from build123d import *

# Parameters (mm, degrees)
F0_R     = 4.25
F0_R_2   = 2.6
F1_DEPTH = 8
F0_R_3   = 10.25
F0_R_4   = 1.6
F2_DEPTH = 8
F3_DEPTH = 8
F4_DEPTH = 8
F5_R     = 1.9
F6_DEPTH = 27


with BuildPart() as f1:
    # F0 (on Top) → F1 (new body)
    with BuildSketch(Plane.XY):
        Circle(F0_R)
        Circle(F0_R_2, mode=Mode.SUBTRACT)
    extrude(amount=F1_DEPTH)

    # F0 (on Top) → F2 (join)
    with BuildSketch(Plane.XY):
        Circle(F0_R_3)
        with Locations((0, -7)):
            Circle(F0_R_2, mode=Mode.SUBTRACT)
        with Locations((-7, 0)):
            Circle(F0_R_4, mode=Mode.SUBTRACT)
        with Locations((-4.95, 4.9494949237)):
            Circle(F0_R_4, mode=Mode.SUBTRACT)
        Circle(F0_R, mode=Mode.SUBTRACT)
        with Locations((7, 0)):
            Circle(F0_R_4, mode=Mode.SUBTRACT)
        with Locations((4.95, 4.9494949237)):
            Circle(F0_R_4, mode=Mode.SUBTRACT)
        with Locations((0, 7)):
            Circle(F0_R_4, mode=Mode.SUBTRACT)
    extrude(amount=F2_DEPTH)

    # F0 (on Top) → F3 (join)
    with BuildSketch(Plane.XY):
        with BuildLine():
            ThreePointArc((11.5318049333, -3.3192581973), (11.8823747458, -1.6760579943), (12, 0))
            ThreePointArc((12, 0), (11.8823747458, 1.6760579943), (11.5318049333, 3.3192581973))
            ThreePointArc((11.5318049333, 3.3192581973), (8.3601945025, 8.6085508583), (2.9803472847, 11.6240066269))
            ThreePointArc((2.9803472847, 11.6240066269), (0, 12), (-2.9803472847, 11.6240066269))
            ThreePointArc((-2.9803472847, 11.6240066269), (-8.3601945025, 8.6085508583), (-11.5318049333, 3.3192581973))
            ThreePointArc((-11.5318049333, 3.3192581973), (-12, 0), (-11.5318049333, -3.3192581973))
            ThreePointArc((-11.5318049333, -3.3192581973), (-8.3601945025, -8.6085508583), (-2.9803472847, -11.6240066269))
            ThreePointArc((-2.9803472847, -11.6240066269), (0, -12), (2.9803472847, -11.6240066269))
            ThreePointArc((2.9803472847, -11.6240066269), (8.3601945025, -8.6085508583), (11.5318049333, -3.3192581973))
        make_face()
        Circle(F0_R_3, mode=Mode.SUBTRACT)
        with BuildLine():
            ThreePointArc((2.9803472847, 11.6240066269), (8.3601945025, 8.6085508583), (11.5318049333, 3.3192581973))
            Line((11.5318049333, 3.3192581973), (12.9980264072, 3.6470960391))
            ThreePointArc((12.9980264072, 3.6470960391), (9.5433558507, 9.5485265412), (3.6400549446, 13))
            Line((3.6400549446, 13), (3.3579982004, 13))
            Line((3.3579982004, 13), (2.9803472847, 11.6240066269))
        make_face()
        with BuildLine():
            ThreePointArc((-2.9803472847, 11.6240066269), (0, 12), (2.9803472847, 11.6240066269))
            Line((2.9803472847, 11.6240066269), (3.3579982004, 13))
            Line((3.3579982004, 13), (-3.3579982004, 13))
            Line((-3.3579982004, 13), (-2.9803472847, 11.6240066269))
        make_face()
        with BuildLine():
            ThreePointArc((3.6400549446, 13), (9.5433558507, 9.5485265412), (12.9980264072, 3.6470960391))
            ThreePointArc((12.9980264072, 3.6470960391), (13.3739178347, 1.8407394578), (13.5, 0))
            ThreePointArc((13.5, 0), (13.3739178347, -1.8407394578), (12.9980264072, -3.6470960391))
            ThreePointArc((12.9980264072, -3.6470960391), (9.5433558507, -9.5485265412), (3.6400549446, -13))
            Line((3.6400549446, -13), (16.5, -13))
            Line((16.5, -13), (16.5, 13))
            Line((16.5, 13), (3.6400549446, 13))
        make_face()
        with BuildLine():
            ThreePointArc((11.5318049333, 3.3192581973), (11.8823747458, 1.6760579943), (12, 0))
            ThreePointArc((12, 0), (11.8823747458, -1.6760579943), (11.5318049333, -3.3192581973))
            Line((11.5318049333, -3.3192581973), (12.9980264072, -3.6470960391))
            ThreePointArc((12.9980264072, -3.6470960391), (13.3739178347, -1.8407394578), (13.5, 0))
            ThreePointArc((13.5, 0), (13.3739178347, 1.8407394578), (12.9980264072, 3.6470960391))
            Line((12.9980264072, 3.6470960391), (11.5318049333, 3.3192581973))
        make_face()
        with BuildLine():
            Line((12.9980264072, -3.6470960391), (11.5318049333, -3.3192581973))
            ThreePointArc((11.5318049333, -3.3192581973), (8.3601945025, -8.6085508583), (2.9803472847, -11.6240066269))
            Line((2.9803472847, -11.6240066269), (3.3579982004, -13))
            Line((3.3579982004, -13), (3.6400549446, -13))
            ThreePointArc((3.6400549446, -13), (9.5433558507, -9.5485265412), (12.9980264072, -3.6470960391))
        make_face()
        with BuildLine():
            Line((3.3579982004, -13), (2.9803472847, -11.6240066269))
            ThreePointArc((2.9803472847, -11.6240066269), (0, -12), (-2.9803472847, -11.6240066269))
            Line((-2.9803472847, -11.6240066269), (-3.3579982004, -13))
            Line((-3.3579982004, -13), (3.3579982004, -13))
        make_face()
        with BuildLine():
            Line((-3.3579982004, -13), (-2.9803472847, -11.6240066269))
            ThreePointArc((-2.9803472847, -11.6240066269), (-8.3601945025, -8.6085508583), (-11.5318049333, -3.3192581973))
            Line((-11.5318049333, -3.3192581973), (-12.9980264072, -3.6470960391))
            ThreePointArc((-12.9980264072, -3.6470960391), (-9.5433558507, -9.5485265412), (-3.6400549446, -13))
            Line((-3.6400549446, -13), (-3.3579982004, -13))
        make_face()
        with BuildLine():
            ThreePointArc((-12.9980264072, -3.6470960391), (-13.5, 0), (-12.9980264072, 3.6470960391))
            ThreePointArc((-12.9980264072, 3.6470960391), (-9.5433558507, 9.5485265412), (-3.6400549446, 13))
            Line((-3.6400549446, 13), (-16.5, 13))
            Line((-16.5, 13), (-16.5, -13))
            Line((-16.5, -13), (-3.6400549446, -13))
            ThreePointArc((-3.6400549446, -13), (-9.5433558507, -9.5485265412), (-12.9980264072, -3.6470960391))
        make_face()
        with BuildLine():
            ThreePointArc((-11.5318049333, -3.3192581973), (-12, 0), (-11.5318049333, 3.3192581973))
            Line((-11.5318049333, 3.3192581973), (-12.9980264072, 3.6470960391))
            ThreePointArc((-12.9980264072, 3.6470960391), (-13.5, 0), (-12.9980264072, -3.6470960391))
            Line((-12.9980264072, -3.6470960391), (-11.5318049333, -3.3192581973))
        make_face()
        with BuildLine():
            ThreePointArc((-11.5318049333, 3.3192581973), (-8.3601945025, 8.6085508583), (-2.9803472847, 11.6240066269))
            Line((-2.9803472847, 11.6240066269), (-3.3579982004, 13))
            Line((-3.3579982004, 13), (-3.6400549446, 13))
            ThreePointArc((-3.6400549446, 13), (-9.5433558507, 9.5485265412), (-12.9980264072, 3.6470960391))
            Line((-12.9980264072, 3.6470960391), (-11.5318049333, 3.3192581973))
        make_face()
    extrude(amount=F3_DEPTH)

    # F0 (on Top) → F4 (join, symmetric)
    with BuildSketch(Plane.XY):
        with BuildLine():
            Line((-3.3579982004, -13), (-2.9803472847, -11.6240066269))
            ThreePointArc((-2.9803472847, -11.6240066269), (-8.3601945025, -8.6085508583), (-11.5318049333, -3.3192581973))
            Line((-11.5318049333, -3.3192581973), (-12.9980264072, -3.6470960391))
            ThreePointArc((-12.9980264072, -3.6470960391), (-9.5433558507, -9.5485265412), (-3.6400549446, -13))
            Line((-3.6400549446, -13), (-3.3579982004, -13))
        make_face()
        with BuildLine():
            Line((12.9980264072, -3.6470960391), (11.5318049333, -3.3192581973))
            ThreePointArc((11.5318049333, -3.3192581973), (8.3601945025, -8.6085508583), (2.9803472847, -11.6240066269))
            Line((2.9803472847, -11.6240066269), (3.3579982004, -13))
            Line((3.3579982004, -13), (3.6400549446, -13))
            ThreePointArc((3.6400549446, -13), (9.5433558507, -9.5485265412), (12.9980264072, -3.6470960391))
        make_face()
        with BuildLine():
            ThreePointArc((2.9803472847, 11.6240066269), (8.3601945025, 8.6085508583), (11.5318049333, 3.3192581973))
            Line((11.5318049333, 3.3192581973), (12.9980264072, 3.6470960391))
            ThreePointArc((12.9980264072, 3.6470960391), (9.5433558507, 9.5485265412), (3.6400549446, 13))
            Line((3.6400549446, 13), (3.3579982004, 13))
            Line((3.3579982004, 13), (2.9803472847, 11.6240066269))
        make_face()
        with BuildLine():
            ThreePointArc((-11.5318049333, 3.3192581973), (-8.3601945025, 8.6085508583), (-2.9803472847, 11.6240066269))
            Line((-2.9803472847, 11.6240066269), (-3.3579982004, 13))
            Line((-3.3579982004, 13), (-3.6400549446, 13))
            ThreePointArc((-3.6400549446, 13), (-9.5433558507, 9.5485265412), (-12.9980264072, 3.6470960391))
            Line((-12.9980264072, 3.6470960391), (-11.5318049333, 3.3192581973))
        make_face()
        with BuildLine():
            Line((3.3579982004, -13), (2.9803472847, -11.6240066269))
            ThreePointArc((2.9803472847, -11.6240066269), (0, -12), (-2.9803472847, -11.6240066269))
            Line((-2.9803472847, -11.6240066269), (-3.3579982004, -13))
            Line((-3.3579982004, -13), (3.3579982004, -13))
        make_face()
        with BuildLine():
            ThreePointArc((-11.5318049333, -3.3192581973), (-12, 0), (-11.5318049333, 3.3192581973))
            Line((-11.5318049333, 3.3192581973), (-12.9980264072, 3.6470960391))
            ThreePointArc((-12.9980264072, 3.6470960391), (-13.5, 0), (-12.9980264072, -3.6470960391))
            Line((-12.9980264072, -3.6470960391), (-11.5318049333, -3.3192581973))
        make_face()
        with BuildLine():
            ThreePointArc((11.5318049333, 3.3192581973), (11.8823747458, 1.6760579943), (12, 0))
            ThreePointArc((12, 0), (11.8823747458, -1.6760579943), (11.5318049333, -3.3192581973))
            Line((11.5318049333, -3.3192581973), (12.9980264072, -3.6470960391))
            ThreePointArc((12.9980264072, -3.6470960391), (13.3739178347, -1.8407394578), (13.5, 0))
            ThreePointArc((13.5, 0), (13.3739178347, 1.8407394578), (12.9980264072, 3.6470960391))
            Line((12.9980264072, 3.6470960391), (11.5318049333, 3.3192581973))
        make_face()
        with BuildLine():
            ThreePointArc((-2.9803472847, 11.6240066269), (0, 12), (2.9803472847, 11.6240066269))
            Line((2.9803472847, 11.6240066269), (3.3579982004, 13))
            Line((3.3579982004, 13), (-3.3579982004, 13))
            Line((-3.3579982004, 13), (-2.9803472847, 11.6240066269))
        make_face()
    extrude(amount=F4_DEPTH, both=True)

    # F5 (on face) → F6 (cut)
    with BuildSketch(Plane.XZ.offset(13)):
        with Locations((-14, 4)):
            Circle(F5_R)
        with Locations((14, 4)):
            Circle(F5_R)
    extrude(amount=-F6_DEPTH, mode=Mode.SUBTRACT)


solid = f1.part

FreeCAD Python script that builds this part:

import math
import FreeCAD as App
import Part
import Sketcher

doc = App.newDocument("Part")
body = doc.addObject("PartDesign::Body", "Body")

# Sketch on XY plane
sketch1 = doc.addObject("Sketcher::SketchObject", "Sketch")
body.addObject(sketch1)
sketch1.AttachmentSupport = (doc.XY_Plane, [""])
sketch1.MapMode = "FlatFace"
sketch1.addGeometry([
    Part.Circle(App.Vector(0, 0, 0), App.Vector(0, 0, 1), 4.2),
    Part.Circle(App.Vector(0, 0, 0), App.Vector(0, 0, 1), 2.6),
], False)
sketch1.addConstraint([
    Sketcher.Constraint("Coincident", 0, 3, -1, 1),
    Sketcher.Constraint("Coincident", 1, 3, -1, 1),
    Sketcher.Constraint("Diameter", 0, 8.5),
    Sketcher.Constraint("Diameter", 1, 5.2),
])
pad1 = doc.addObject("PartDesign::Pad", "Pad")
body.addObject(pad1)
pad1.Profile = sketch1
pad1.Length = 8

# Sketch on XY plane
sketch2 = doc.addObject("Sketcher::SketchObject", "Sketch001")
body.addObject(sketch2)
sketch2.AttachmentSupport = (doc.XY_Plane, [""])
sketch2.MapMode = "FlatFace"
sketch2.addGeometry([
    Part.Circle(App.Vector(0, 0, 0), App.Vector(0, 0, 1), 10.2),  # 0
    Part.Circle(App.Vector(0, -7, 0), App.Vector(0, 0, 1), 2.6),  # 1
    Part.Circle(App.Vector(-7, 0, 0), App.Vector(0, 0, 1), 1.6),  # 2
    Part.Circle(App.Vector(0, 0, 0), App.Vector(0, 0, 1), 4.2),  # 3
    Part.Circle(App.Vector(-5, 4.9, 0), App.Vector(0, 0, 1), 1.6),  # 4
    Part.Circle(App.Vector(0, 7, 0), App.Vector(0, 0, 1), 1.6),  # 5
    Part.Circle(App.Vector(7, 0, 0), App.Vector(0, 0, 1), 1.6),  # 6
    Part.Circle(App.Vector(5, 4.9, 0), App.Vector(0, 0, 1), 1.6),  # 7
], False)
sketch2.addConstraint([
    Sketcher.Constraint("Coincident", 0, 3, -1, 1),
    Sketcher.Constraint("Coincident", 3, 3, -1, 1),
    Sketcher.Constraint("Equal", 2, 4),
    Sketcher.Constraint("Equal", 4, 5),
    Sketcher.Constraint("Equal", 5, 6),
    Sketcher.Constraint("Equal", 6, 7),
    Sketcher.Constraint("Symmetric", 1, 3, 5, 3, -1, 1),
    Sketcher.Constraint("Symmetric", 2, 3, 6, 3, -1, 1),
    Sketcher.Constraint("Symmetric", 4, 3, 7, 3, -2),
    Sketcher.Constraint("PointOnObject", 1, 3, -2),
    Sketcher.Constraint("PointOnObject", 2, 3, -1),
    Sketcher.Constraint("Diameter", 0, 20.5),
    Sketcher.Constraint("Diameter", 1, 5.2),
    Sketcher.Constraint("Diameter", 2, 3.2),
    Sketcher.Constraint("Diameter", 3, 8.5),
    Sketcher.Constraint("DistanceY", 1, 3, -1, 1, 7.0),
    Sketcher.Constraint("DistanceX", 2, 3, -1, 1, 7.0),
    Sketcher.Constraint("DistanceX", 4, 3, 7, 3, 9.9),
    Sketcher.Constraint("DistanceY", -1, 1, 4, 3, 4.949495),
])
pad2 = doc.addObject("PartDesign::Pad", "Pad001")
body.addObject(pad2)
pad2.Profile = sketch2
pad2.Length = 8

# Sketch on XY plane
sketch3 = doc.addObject("Sketcher::SketchObject", "Sketch002")
body.addObject(sketch3)
sketch3.AttachmentSupport = (doc.XY_Plane, [""])
sketch3.MapMode = "FlatFace"
sketch3.addGeometry([
    Part.LineSegment(App.Vector(16, -13, 0), App.Vector(16, 13, 0)),  # 0
    Part.LineSegment(App.Vector(16, 13, 0), App.Vector(-16, 13, 0)),  # 1
    Part.LineSegment(App.Vector(-16, 13, 0), App.Vector(-16, -13, 0)),  # 2
    Part.LineSegment(App.Vector(-16, -13, 0), App.Vector(16, -13, 0)),  # 3
    Part.Circle(App.Vector(0, 0, 0), App.Vector(0, 0, 1), 10),  # 4
], False)
sketch3.addConstraint([
    Sketcher.Constraint("Coincident", 0, 2, 1, 1),
    Sketcher.Constraint("Coincident", 1, 2, 2, 1),
    Sketcher.Constraint("Coincident", 2, 2, 3, 1),
    Sketcher.Constraint("Coincident", 3, 2, 0, 1),
    Sketcher.Constraint("Vertical", 0),
    Sketcher.Constraint("Horizontal", 1),
    Sketcher.Constraint("Vertical", 2),
    Sketcher.Constraint("Horizontal", 3),
    Sketcher.Constraint("Coincident", 4, 3, -1, 1),
    Sketcher.Constraint("Symmetric", 0, 2, 2, 2, -1, 1),
    Sketcher.Constraint("Diameter", 4, 20.5),
    Sketcher.Constraint("DistanceX", 1, 2, 1, 1, 33.0),
    Sketcher.Constraint("DistanceY", 0, 1, 0, 2, 26.0),
])
pad3 = doc.addObject("PartDesign::Pad", "Pad002")
body.addObject(pad3)
pad3.Profile = sketch3
pad3.Length = 8

# Sketch on XY plane
sketch4 = doc.addObject("Sketcher::SketchObject", "Sketch003")
body.addObject(sketch4)
sketch4.AttachmentSupport = (doc.XY_Plane, [""])
sketch4.MapMode = "FlatFace"
sketch4.addGeometry([
    Part.ArcOfCircle(Part.Circle(App.Vector(0, 0, 0), App.Vector(0, 0, 1), 13.5), math.radians(106), math.radians(164)),  # 0
    Part.ArcOfCircle(Part.Circle(App.Vector(0, 0, 0), App.Vector(0, 0, 1), 13.5), math.radians(164), math.radians(196)),  # 1
    Part.ArcOfCircle(Part.Circle(App.Vector(0, 0, 0), App.Vector(0, 0, 1), 13.5), math.radians(-164), math.radians(-106)),  # 2
    Part.LineSegment(App.Vector(-3.6, -13, 0), App.Vector(3.6, -13, 0)),  # 3
    Part.ArcOfCircle(Part.Circle(App.Vector(0, 0, 0), App.Vector(0, 0, 1), 13.5), math.radians(-74), math.radians(-16)),  # 4
    Part.ArcOfCircle(Part.Circle(App.Vector(0, 0, 0), App.Vector(0, 0, 1), 13.5), math.radians(-15.67), math.radians(0)),  # 5
    Part.ArcOfCircle(Part.Circle(App.Vector(0, 0, 0), App.Vector(0, 0, 1), 13.5), math.radians(0), math.radians(15.67)),  # 6
    Part.ArcOfCircle(Part.Circle(App.Vector(0, 0, 0), App.Vector(0, 0, 1), 13.5), math.radians(16), math.radians(74)),  # 7
    Part.LineSegment(App.Vector(3.6, 13, 0), App.Vector(-3.6, 13, 0)),  # 8
    Part.ArcOfCircle(Part.Circle(App.Vector(0, 0, 0), App.Vector(0, 0, 1), 12), math.radians(-164), math.radians(-104)),  # 9
    Part.ArcOfCircle(Part.Circle(App.Vector(0, 0, 0), App.Vector(0, 0, 1), 12), math.radians(164), math.radians(196)),  # 10
    Part.ArcOfCircle(Part.Circle(App.Vector(0, 0, 0), App.Vector(0, 0, 1), 12), math.radians(104), math.radians(164)),  # 11
    Part.ArcOfCircle(Part.Circle(App.Vector(0, 0, 0), App.Vector(0, 0, 1), 12), math.radians(76), math.radians(104)),  # 12
    Part.ArcOfCircle(Part.Circle(App.Vector(0, 0, 0), App.Vector(0, 0, 1), 12), math.radians(16), math.radians(76)),  # 13
    Part.ArcOfCircle(Part.Circle(App.Vector(0, 0, 0), App.Vector(0, 0, 1), 12), math.radians(0), math.radians(16.06)),  # 14
    Part.ArcOfCircle(Part.Circle(App.Vector(0, 0, 0), App.Vector(0, 0, 1), 12), math.radians(-16.06), math.radians(0)),  # 15
    Part.ArcOfCircle(Part.Circle(App.Vector(0, 0, 0), App.Vector(0, 0, 1), 12), math.radians(-76), math.radians(-16)),  # 16
    Part.ArcOfCircle(Part.Circle(App.Vector(0, 0, 0), App.Vector(0, 0, 1), 12), math.radians(-104), math.radians(-76)),  # 17
], False)
sketch4.addConstraint([
    Sketcher.Constraint("Tangent", 0, 2, 1, 1),
    Sketcher.Constraint("Tangent", 1, 2, 2, 1),
    Sketcher.Constraint("Coincident", 2, 2, 3, 1),
    Sketcher.Constraint("Coincident", 3, 2, 4, 1),
    Sketcher.Constraint("Tangent", 4, 2, 5, 1),
    Sketcher.Constraint("Tangent", 5, 2, 6, 1),
    Sketcher.Constraint("Tangent", 6, 2, 7, 1),
    Sketcher.Constraint("Coincident", 7, 2, 8, 1),
    Sketcher.Constraint("Coincident", 8, 2, 0, 1),
    Sketcher.Constraint("Tangent", 9, 1, 10, 2),
    Sketcher.Constraint("Tangent", 10, 1, 11, 2),
    Sketcher.Constraint("Tangent", 11, 1, 12, 2),
    Sketcher.Constraint("Tangent", 12, 1, 13, 2),
    Sketcher.Constraint("Tangent", 13, 1, 14, 2),
    Sketcher.Constraint("Tangent", 14, 1, 15, 2),
    Sketcher.Constraint("Tangent", 15, 1, 16, 2),
    Sketcher.Constraint("Tangent", 16, 1, 17, 2),
    Sketcher.Constraint("Tangent", 17, 1, 9, 2),
    Sketcher.Constraint("Horizontal", 3),
    Sketcher.Constraint("Horizontal", 8),
    Sketcher.Constraint("Coincident", 0, 3, -1, 1),
    Sketcher.Constraint("Coincident", 2, 3, -1, 1),
    Sketcher.Constraint("Coincident", 4, 3, -1, 1),
    Sketcher.Constraint("Coincident", 6, 3, -1, 1),
    Sketcher.Constraint("Coincident", 9, 3, -1, 1),
    Sketcher.Constraint("Coincident", 11, 3, -1, 1),
    Sketcher.Constraint("Coincident", 13, 3, -1, 1),
    Sketcher.Constraint("Coincident", 15, 3, -1, 1),
    Sketcher.Constraint("Equal", 2, 4),
    Sketcher.Constraint("Equal", 6, 7),
    Sketcher.Constraint("PointOnObject", 5, 2, -1),
    Sketcher.Constraint("PointOnObject", 14, 1, -1),
    Sketcher.Constraint("Horizontal", 1, 2, 4, 2),
    Sketcher.Constraint("Horizontal", 0, 2, 6, 2),
    Sketcher.Constraint("Horizontal", 11, 1, 12, 1),
    Sketcher.Constraint("Horizontal", 10, 1, 13, 1),
    Sketcher.Constraint("Horizontal", 9, 1, 15, 1),
    Sketcher.Constraint("Horizontal", 16, 1, 17, 1),
    Sketcher.Constraint("Vertical", 0, 2, 1, 2),
    Sketcher.Constraint("Vertical", 3, 2, 7, 2),
    Sketcher.Constraint("Vertical", 9, 1, 10, 1),
    Sketcher.Constraint("Vertical", 12, 1, 16, 1),
    Sketcher.Constraint("Radius", 9, 12.0),
    Sketcher.Constraint("Radius", 0, 13.5),
    Sketcher.Constraint("DistanceY", 2, 2, -1, 1, 13.0),
    Sketcher.Constraint("DistanceY", 9, 1, -1, 1, 3.319258),
    Sketcher.Constraint("DistanceX", 1, 2, 2, 2, 9.357971),
    Sketcher.Constraint("DistanceY", 10, 1, 11, 1, 8.304748),
])
pad4 = doc.addObject("PartDesign::Pad", "Pad003")
body.addObject(pad4)
pad4.Profile = sketch4
pad4.Length = 16
pad4.Midplane = True

# Sketch on XZ plane
sketch5 = doc.addObject("Sketcher::SketchObject", "Sketch004")
body.addObject(sketch5)
sketch5.AttachmentSupport = (doc.XZ_Plane, [""])
sketch5.MapMode = "FlatFace"
sketch5.AttachmentOffset = App.Placement(App.Vector(0, 0, 13), App.Rotation())
sketch5.addGeometry([
    Part.Circle(App.Vector(-14, 4, 0), App.Vector(0, 0, 1), 1.9),
    Part.Circle(App.Vector(14, 4, 0), App.Vector(0, 0, 1), 1.9),
], False)
sketch5.addConstraint([
    Sketcher.Constraint("Equal", 0, 1),
    Sketcher.Constraint("Symmetric", 0, 3, 1, 3, -2),
    Sketcher.Constraint("Diameter", 0, 3.8),
    Sketcher.Constraint("DistanceX", 0, 3, -1, 1, 14.0),
    Sketcher.Constraint("DistanceY", -1, 1, 0, 3, 4.0),
])
pocket1 = doc.addObject("PartDesign::Pocket", "Pocket")
body.addObject(pocket1)
pocket1.Profile = sketch5
pocket1.Length = 27

doc.recompute()
